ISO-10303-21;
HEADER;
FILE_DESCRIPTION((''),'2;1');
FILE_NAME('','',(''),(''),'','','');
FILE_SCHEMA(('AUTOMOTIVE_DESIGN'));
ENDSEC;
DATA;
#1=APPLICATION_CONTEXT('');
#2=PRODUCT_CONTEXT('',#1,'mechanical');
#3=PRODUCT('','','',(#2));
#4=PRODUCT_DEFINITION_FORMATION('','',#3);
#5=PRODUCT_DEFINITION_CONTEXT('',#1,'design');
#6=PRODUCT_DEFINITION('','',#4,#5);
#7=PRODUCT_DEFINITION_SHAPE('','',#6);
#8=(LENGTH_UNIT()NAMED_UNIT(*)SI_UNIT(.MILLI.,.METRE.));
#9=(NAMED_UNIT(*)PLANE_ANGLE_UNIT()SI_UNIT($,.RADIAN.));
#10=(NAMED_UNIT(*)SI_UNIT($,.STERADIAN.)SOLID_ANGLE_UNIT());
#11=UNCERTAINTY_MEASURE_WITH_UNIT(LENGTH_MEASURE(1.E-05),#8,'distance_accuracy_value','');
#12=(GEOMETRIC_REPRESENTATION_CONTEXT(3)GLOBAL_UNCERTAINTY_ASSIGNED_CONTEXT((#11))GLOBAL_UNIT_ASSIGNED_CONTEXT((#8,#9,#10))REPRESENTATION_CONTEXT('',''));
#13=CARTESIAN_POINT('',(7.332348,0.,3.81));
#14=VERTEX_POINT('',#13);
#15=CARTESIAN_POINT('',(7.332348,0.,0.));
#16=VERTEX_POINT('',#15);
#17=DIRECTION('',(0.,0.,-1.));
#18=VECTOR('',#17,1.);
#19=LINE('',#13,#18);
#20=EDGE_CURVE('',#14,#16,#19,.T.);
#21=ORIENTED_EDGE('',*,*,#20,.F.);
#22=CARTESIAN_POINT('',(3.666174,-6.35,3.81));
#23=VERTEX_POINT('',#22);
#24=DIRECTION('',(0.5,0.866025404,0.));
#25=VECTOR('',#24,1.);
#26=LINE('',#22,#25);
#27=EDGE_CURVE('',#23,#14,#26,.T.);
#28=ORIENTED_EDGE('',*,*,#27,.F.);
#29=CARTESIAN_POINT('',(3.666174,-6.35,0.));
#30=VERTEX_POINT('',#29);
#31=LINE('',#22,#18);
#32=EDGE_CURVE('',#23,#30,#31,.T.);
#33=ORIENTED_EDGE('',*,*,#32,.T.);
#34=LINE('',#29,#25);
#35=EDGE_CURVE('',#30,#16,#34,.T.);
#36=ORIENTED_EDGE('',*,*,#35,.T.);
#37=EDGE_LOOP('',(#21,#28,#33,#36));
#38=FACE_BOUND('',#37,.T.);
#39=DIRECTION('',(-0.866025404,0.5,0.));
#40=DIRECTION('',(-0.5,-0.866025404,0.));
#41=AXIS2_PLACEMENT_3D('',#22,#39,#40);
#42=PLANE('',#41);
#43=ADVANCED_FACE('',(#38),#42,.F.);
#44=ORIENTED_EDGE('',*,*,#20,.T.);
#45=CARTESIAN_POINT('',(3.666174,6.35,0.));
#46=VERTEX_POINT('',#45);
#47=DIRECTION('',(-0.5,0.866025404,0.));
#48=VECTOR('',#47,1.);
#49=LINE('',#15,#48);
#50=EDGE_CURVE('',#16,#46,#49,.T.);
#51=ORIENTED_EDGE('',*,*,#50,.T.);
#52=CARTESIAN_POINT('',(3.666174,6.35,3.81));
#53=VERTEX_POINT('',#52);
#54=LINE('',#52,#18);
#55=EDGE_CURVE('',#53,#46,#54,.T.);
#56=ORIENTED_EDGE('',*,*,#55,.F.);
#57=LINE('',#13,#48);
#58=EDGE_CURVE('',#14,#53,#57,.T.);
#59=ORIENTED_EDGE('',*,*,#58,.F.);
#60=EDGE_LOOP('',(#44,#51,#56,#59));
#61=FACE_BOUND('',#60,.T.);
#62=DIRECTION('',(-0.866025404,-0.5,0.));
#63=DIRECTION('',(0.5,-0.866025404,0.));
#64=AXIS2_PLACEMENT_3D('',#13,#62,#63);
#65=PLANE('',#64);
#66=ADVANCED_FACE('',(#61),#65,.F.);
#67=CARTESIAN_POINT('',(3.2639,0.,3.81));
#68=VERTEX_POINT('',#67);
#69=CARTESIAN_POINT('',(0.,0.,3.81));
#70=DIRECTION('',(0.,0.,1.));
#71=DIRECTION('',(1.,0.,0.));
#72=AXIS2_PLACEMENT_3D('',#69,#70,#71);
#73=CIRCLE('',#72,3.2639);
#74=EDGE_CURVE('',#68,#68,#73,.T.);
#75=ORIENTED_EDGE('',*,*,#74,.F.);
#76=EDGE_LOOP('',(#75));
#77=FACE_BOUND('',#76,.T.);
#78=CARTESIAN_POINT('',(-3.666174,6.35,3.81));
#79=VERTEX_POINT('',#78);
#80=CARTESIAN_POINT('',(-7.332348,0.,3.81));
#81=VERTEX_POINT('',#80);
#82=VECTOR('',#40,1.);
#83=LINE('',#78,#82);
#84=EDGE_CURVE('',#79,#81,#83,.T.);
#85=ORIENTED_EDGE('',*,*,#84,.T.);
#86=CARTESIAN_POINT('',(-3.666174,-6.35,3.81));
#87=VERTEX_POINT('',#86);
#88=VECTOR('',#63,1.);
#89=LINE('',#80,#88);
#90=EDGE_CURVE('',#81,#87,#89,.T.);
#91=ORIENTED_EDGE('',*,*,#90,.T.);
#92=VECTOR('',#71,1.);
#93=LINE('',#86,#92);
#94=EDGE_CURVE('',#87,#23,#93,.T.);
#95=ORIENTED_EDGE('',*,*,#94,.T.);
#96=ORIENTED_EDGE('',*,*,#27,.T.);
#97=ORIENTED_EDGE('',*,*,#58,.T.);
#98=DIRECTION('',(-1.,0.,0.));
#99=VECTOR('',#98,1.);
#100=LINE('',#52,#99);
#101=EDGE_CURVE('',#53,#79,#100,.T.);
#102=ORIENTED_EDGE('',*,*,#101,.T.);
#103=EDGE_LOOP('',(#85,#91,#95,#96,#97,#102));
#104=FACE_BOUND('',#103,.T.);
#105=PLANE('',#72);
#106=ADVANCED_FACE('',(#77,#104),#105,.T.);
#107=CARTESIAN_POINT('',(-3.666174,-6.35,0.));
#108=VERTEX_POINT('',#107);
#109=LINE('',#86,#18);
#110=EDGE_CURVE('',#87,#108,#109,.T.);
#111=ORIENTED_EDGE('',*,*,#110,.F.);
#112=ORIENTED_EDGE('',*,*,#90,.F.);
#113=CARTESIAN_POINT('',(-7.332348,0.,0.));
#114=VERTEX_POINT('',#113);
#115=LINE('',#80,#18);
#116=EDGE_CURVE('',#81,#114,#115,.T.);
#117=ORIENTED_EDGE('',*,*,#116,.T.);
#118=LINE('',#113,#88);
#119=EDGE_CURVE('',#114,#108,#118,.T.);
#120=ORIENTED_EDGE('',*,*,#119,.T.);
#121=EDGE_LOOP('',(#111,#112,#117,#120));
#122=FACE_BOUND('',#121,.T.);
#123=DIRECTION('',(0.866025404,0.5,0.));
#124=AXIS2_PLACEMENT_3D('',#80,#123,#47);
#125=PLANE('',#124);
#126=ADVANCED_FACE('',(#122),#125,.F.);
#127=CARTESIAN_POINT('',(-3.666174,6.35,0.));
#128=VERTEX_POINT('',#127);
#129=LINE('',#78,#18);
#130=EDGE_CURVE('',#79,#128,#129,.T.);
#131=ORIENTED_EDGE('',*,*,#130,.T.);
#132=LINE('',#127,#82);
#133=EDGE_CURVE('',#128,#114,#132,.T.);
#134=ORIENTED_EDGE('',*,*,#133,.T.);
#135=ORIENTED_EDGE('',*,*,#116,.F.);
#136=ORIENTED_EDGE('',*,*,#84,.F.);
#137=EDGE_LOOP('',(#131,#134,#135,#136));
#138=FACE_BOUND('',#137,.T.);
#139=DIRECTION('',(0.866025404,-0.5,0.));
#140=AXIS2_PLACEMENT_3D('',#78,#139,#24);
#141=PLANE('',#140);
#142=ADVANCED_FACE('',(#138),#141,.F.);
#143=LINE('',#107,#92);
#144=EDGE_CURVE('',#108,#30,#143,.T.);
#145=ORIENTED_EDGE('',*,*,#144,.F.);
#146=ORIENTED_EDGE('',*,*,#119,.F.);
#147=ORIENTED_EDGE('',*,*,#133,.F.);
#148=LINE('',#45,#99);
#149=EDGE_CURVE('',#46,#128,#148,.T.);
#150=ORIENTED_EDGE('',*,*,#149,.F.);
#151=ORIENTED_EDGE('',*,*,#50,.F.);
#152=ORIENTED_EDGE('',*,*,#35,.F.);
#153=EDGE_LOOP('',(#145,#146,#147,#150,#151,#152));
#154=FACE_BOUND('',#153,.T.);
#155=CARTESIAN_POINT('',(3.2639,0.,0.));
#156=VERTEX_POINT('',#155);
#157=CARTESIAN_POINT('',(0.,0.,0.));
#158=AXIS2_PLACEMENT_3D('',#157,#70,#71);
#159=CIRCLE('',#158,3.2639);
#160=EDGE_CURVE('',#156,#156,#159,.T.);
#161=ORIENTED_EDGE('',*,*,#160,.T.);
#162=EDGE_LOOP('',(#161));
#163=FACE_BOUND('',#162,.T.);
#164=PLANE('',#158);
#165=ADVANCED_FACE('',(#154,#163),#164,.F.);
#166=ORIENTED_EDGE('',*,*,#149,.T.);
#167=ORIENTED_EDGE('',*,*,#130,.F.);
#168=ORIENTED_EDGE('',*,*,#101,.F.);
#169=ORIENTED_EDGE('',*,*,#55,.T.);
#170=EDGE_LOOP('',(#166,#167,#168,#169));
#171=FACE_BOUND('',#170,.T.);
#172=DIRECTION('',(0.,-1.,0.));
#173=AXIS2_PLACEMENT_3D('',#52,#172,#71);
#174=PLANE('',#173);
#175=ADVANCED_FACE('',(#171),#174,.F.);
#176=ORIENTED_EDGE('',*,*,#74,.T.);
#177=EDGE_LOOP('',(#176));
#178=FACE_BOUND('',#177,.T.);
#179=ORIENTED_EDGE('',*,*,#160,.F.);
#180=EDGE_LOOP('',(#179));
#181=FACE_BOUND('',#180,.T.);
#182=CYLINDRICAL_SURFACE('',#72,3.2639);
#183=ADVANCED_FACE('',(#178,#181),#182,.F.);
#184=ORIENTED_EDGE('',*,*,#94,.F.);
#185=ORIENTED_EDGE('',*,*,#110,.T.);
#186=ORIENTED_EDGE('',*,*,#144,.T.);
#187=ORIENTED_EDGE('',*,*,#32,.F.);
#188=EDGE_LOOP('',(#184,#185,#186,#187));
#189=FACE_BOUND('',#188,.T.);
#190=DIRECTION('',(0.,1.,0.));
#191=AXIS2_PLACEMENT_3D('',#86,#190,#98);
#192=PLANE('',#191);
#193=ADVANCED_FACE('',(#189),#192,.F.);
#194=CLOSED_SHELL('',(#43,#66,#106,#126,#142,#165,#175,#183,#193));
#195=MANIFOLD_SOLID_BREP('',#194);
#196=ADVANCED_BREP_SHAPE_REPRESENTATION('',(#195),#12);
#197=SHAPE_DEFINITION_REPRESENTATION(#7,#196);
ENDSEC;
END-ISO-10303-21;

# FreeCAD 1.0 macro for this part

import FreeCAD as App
import Part
import Sketcher
from FreeCAD import Vector
Q = App.Units.Quantity


def add_polygon(sketch, points):
    """Adds a closed chain of lines whose ends are joined by coincident constraints."""
    first, n = sketch.GeometryCount, len(points)
    for a, b in zip(points, points[1:] + points[:1]):
        sketch.addGeometry(Part.LineSegment(App.Vector(*a, 0), App.Vector(*b, 0)), False)
    for i in range(n):
        sketch.addConstraint(Sketcher.Constraint("Coincident", first + i, 2, first + (i + 1) % n, 1))

doc = App.newDocument("Part")
body = doc.addObject("PartDesign::Body", "Body")

# Sketch on XY plane
sketch1 = body.newObject("Sketcher::SketchObject", "Sketch")
sketch1.AttachmentSupport = (doc.getObject("XY_Plane"), [""])
sketch1.MapMode = "FlatFace"
add_polygon(sketch1, [(7.332348, 0), (3.666174, 6.35), (-3.666174, 6.35), (-7.332348, 0), (-3.666174, -6.35), (3.666174, -6.35)])  # lines 0-5
sketch1.addConstraint(Sketcher.Constraint("Horizontal", 1))
sketch1.addConstraint(Sketcher.Constraint("Horizontal", 4))
sketch1.addConstraint(Sketcher.Constraint("Symmetric", 0, 2, 3, 2, -1, 1))
sketch1.addConstraint(Sketcher.Constraint("Symmetric", 2, 2, 5, 2, -1, 1))
sketch1.addConstraint(Sketcher.Constraint("PointOnObject", 2, 2, -1))
sketch1.addConstraint(Sketcher.Constraint("Parallel", 2, 5))
sketch1.addConstraint(Sketcher.Constraint("Vertical", 1, 2, 3, 2))
sketch1.addConstraint(Sketcher.Constraint("Angle", 0, Q("120 deg")))
sketch1.addConstraint(Sketcher.Constraint("DistanceY", 3, 2, 1, 2, Q("0.5 in")))
sketch1.addConstraint(Sketcher.Constraint("DistanceX", 1, 2, 1, 1, 7.332348))
pad1 = body.newObject("PartDesign::Pad", "Pad")
pad1.Profile = sketch1
pad1.Length = Q("0.15 in")

# Sketch on XY plane
sketch2 = body.newObject("Sketcher::SketchObject", "Sketch001")
sketch2.AttachmentSupport = (doc.getObject("XY_Plane"), [""])
sketch2.MapMode = "FlatFace"
sketch2.AttachmentOffset = App.Placement(Vector(0, 0, 0.15 * 25.4), App.Rotation())
sketch2.addGeometry(Part.Circle(Vector(0, 0, 0), Vector(0, 0, 1), 3.2639), False)
sketch2.addConstraint(Sketcher.Constraint("Coincident", 0, 3, -1, 1))
sketch2.addConstraint(Sketcher.Constraint("Diameter", 0, Q("0.257 in")))
doc.recompute()
hole = body.newObject("PartDesign::Hole", "Hole")
hole.Profile = sketch2
hole.ThreadType = "None"
hole.Diameter = Q("0.257 in")
hole.DepthType = "Dimension"
hole.Depth = Q("1 in")
hole.DrillPoint = "Angled"
hole.DrillPointAngle = 118

doc.recompute()
